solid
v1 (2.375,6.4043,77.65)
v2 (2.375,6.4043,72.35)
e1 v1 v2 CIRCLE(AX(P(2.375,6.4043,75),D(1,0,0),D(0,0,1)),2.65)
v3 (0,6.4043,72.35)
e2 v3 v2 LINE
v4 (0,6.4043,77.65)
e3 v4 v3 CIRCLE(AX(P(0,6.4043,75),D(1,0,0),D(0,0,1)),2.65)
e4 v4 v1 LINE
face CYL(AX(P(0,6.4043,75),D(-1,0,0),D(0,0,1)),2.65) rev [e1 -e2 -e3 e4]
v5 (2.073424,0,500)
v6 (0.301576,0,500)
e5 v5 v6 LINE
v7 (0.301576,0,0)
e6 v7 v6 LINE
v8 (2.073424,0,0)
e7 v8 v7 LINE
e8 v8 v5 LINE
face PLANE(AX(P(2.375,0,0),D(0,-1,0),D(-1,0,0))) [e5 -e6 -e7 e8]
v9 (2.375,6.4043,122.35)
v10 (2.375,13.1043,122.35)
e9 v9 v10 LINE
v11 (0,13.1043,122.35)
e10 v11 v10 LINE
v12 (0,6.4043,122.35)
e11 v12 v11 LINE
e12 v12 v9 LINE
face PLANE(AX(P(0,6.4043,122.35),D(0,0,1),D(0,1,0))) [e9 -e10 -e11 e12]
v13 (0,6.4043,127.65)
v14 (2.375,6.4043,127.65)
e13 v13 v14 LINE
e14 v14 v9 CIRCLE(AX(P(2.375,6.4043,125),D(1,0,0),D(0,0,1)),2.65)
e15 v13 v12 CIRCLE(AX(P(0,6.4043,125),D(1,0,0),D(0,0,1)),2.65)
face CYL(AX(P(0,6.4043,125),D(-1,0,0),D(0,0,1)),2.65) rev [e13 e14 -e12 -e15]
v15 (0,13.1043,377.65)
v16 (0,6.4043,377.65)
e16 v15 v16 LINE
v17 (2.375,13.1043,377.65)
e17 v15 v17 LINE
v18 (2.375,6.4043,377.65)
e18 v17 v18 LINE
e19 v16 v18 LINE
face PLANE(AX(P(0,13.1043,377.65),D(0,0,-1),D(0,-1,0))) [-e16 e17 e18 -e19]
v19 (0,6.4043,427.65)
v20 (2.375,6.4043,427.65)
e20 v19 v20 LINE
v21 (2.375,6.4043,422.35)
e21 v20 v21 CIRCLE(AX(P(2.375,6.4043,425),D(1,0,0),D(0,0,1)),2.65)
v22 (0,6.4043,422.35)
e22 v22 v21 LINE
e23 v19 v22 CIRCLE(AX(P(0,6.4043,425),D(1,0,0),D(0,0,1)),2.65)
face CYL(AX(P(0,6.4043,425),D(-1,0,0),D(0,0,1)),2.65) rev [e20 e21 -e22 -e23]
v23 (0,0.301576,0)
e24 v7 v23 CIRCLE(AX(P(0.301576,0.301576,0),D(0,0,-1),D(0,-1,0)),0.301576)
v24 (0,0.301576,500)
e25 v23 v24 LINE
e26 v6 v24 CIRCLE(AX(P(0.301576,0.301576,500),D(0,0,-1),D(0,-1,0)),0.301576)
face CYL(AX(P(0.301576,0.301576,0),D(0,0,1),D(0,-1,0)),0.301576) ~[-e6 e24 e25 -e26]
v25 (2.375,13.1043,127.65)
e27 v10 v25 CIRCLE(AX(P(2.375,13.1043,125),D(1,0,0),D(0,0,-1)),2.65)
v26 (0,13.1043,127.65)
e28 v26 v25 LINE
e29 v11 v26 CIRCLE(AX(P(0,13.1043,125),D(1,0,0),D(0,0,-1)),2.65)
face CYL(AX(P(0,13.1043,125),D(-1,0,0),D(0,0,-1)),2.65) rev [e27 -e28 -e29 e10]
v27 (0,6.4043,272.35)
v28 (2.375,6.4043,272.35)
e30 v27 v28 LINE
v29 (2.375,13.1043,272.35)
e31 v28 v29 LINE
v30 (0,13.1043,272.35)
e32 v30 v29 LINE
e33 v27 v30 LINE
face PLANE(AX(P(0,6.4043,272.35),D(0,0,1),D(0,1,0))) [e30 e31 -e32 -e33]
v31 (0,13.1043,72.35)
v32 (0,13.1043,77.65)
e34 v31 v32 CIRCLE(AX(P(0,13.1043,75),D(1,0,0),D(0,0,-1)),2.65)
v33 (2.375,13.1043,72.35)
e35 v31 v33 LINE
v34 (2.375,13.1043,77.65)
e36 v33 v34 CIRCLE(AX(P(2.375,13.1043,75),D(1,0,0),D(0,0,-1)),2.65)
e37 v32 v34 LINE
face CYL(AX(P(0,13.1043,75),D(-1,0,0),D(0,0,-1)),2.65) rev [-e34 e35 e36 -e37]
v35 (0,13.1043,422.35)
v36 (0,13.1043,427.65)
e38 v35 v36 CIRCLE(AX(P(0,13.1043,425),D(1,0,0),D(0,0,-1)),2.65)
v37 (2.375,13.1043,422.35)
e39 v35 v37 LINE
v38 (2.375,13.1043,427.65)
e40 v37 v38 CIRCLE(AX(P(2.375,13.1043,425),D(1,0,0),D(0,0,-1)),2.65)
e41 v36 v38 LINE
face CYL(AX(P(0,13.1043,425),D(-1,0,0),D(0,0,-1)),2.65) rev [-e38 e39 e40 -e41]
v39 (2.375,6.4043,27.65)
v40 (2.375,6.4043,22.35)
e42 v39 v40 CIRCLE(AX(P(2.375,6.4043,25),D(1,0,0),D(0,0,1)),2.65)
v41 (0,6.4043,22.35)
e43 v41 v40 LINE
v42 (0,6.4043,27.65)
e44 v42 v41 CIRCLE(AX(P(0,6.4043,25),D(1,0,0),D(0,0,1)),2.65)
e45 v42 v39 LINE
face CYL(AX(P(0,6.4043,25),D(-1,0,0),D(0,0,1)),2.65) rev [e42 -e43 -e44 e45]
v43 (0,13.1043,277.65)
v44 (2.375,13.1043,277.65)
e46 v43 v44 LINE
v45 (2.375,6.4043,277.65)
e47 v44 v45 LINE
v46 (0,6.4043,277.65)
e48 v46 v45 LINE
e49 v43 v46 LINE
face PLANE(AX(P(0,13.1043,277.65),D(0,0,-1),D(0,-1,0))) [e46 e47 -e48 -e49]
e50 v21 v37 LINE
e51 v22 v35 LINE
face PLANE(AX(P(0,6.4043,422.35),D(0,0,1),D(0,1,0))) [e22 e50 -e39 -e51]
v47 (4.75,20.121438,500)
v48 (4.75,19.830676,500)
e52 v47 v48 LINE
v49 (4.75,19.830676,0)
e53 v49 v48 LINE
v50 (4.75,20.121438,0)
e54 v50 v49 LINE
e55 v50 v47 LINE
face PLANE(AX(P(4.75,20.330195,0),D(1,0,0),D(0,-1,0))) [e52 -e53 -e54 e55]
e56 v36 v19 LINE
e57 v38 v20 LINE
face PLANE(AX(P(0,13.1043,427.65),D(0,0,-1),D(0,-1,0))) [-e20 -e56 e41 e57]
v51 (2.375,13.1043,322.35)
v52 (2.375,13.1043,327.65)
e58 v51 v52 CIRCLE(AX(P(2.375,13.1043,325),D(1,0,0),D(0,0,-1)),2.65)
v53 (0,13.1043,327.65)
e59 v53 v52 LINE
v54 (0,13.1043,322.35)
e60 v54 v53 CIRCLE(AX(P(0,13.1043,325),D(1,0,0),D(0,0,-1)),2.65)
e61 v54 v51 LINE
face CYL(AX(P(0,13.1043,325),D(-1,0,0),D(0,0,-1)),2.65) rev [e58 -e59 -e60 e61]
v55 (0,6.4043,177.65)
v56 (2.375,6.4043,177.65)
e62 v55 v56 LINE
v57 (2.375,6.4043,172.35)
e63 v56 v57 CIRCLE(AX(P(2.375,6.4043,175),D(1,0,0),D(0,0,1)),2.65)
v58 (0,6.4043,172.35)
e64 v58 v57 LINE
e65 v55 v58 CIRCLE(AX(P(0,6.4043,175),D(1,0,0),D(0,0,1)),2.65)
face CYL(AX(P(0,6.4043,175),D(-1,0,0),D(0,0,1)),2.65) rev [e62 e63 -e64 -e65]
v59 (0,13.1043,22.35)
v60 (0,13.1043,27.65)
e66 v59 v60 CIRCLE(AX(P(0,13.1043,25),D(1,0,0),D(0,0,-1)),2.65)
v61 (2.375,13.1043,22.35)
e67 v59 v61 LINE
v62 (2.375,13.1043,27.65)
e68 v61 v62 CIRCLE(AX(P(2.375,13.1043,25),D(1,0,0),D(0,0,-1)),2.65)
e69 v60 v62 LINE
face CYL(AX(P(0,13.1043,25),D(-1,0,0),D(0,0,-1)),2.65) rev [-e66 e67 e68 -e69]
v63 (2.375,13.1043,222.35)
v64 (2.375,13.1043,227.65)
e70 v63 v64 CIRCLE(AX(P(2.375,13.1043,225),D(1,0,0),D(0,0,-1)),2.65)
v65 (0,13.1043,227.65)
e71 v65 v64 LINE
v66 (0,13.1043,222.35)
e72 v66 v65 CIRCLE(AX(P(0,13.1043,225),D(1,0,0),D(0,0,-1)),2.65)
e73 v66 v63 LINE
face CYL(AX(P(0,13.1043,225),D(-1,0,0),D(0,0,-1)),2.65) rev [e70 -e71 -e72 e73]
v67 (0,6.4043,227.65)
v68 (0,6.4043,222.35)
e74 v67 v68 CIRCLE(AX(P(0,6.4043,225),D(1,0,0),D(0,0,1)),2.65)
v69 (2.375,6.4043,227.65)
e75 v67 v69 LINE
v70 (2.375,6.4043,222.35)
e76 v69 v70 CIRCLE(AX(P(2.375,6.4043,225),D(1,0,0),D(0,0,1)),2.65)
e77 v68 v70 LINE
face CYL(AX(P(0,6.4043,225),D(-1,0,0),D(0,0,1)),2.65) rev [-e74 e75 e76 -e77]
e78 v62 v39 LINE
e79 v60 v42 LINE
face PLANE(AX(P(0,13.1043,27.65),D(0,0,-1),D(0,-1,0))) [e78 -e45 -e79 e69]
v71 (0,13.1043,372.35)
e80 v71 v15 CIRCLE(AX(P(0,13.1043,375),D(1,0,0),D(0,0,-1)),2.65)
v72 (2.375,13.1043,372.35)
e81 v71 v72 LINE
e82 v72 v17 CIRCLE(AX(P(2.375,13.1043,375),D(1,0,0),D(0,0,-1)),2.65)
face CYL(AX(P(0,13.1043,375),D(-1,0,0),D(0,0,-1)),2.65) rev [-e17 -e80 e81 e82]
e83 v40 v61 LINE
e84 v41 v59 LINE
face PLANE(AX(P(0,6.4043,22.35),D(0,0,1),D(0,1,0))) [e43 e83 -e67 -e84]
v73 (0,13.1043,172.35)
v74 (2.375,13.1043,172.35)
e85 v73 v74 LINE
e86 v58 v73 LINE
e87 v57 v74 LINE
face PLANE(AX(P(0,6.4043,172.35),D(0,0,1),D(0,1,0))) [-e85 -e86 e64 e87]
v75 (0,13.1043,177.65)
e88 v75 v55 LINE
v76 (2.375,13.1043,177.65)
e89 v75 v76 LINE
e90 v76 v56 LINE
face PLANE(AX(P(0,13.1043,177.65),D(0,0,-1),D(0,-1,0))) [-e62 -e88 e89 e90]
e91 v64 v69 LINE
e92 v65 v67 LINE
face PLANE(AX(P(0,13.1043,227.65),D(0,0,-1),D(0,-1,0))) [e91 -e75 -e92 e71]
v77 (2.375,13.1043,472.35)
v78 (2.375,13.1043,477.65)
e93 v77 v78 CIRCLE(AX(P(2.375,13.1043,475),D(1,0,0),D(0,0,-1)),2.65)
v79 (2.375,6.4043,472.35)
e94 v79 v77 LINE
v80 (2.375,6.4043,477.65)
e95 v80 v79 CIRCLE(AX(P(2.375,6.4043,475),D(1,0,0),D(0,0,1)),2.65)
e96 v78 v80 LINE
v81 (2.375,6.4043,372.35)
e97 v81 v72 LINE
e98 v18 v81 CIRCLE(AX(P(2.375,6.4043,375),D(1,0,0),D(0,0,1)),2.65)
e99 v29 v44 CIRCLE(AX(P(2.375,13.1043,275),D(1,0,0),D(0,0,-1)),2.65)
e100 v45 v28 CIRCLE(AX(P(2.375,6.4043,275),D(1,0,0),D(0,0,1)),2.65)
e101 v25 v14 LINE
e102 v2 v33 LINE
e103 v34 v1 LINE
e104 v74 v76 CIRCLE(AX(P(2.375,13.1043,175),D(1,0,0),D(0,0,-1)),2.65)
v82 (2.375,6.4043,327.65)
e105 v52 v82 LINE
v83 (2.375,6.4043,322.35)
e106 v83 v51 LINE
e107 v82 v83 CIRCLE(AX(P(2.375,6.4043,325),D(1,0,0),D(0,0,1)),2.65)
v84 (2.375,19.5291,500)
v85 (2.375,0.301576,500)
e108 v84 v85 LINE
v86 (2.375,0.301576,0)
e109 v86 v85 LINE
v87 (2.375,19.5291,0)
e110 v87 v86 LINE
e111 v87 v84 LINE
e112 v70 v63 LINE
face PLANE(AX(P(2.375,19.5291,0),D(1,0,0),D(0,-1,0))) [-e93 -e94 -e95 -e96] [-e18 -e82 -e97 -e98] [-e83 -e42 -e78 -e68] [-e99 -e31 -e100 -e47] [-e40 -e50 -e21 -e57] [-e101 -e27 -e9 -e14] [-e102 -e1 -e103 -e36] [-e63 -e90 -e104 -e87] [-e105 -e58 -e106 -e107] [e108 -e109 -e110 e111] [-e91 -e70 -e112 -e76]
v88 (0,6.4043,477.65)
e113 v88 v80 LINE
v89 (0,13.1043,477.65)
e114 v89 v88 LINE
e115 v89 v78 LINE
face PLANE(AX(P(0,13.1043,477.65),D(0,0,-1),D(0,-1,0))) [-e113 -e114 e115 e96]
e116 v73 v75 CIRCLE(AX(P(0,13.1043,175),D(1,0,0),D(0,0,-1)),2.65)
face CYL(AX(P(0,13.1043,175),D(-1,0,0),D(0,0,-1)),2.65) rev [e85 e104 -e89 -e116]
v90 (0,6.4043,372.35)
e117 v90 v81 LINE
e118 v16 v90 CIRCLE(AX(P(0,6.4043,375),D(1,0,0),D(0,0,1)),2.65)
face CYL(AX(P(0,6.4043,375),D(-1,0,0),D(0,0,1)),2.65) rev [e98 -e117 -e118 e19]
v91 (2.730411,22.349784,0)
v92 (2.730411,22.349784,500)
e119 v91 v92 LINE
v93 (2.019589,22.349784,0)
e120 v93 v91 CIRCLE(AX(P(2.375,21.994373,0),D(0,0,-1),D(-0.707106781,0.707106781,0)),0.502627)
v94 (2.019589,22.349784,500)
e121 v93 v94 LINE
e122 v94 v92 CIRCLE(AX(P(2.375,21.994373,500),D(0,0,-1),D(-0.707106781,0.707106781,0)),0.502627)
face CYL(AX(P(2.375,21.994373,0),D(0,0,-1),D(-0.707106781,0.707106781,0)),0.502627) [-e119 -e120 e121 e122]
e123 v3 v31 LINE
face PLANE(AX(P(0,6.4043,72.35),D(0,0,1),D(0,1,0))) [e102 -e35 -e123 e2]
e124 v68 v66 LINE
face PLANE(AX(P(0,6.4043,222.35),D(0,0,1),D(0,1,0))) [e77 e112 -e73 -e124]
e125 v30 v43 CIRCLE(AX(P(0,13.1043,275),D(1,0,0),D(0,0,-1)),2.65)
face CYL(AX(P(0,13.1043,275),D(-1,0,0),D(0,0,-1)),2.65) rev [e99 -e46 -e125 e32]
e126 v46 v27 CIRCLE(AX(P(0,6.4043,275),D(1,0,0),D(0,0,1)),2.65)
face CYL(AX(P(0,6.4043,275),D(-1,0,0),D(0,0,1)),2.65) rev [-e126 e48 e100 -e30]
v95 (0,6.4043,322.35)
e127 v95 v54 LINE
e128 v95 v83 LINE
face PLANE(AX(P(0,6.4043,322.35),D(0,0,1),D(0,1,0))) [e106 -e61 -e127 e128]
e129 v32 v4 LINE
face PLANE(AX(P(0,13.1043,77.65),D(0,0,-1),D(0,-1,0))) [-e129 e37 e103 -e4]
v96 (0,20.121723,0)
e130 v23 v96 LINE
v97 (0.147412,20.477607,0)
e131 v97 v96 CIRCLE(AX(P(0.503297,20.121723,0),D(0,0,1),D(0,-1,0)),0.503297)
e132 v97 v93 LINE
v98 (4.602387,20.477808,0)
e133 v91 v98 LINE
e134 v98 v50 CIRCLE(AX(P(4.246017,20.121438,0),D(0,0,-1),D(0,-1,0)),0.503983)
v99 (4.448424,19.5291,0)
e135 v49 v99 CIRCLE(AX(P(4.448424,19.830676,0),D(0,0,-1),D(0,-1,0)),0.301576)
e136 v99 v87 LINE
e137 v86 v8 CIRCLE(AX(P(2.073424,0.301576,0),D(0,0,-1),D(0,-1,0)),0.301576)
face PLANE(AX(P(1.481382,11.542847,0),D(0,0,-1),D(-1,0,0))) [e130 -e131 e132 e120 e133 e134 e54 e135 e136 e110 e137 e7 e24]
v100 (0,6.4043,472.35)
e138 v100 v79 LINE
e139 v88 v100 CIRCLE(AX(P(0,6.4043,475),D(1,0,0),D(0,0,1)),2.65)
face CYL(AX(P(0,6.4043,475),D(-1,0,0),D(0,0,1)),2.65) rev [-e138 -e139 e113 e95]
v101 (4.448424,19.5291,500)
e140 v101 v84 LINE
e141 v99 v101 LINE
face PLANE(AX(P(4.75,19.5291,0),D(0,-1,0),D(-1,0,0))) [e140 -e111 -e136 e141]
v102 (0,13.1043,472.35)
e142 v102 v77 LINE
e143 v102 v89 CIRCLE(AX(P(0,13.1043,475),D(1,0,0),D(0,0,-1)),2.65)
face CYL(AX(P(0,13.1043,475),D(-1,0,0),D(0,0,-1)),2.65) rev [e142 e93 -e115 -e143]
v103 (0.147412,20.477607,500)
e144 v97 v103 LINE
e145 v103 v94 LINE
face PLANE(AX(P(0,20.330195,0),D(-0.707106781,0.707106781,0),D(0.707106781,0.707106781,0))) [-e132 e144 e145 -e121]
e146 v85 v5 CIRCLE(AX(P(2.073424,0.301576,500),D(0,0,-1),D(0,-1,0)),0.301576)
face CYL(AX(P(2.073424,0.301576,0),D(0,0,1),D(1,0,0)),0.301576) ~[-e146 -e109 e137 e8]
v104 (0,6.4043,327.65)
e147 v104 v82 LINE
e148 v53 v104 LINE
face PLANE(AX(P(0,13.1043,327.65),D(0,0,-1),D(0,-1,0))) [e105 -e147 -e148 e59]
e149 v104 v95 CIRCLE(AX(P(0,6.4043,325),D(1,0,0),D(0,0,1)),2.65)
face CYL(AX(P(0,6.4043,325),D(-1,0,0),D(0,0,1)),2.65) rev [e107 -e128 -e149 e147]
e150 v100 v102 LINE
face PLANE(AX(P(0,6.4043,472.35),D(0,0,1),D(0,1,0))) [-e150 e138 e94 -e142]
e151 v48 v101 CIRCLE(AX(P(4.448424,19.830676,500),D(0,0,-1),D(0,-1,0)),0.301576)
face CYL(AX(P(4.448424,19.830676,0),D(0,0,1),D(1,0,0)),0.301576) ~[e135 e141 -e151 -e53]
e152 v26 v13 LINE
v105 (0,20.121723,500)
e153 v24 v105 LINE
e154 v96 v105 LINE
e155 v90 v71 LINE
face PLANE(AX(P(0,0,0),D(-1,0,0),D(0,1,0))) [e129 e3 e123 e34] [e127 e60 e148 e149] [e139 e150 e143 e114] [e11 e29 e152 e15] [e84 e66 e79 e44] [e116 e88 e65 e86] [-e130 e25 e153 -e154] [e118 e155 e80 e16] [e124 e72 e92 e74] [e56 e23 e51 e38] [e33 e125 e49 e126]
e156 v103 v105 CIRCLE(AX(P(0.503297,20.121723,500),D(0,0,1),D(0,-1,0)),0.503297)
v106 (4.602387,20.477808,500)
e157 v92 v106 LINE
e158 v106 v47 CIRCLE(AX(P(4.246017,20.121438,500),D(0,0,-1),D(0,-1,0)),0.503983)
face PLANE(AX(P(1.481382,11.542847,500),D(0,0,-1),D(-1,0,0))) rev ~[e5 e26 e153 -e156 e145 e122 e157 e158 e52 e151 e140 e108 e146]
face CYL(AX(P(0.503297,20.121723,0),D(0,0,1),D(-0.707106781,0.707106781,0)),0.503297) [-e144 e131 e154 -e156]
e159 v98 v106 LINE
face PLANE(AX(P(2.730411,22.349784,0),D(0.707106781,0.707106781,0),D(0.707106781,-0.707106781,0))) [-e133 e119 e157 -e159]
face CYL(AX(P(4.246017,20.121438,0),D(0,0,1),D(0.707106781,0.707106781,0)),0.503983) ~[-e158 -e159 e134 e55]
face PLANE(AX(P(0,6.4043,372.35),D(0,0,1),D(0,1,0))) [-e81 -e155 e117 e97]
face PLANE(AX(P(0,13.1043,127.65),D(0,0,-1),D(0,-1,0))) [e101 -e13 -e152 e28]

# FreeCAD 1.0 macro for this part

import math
import FreeCAD as App
import Part
import Sketcher
Q = App.Units.Quantity


def edges_at(feature, points):
    """Names of the edges that pass closest to the given points."""
    edges = feature.Shape.Edges
    near = lambda p: min(range(len(edges)), key=lambda i: edges[i].distToShape(Part.Vertex(*p))[0])
    return sorted({f"Edge{near(p) + 1}" for p in points})

doc = App.newDocument("Part")
body = doc.addObject("PartDesign::Body", "Body")

# Sketch on XY plane
sketch1 = body.newObject("Sketcher::SketchObject", "Sketch")
sketch1.AttachmentSupport = (doc.getObject("XY_Plane"), [""])
sketch1.MapMode = "FlatFace"
sketch1.addGeometry(Part.LineSegment(App.Vector(2, 22.3, 0), App.Vector(0, 20.3, 0)), False)
sketch1.addGeometry(Part.LineSegment(App.Vector(0, 20.3, 0), App.Vector(0, 0, 0)), False)
sketch1.addGeometry(Part.LineSegment(App.Vector(0, 0, 0), App.Vector(2.4, 0, 0)), False)
sketch1.addGeometry(Part.LineSegment(App.Vector(2.4, 0, 0), App.Vector(2.4, 19.5, 0)), False)
sketch1.addGeometry(Part.LineSegment(App.Vector(2.4, 19.5, 0), App.Vector(4.8, 19.5, 0)), False)
sketch1.addGeometry(Part.LineSegment(App.Vector(4.8, 19.5, 0), App.Vector(4.8, 20.3, 0)), False)
sketch1.addGeometry(Part.LineSegment(App.Vector(4.8, 20.3, 0), App.Vector(2.7, 22.3, 0)), False)
sketch1.addGeometry(Part.ArcOfCircle(Part.Circle(App.Vector(2.4, 22, 0), App.Vector(0, 0, 1), 0.5), math.radians(45), math.radians(135)), False)
sketch1.addConstraint(Sketcher.Constraint("Coincident", 0, 2, 1, 1))
sketch1.addConstraint(Sketcher.Constraint("Coincident", 1, 2, 2, 1))
sketch1.addConstraint(Sketcher.Constraint("Coincident", 2, 2, 3, 1))
sketch1.addConstraint(Sketcher.Constraint("Coincident", 3, 2, 4, 1))
sketch1.addConstraint(Sketcher.Constraint("Coincident", 4, 2, 5, 1))
sketch1.addConstraint(Sketcher.Constraint("Coincident", 5, 2, 6, 1))
sketch1.addConstraint(Sketcher.Constraint("Tangent", 6, 2, 7, 1))
sketch1.addConstraint(Sketcher.Constraint("Tangent", 7, 2, 0, 1))
sketch1.addConstraint(Sketcher.Constraint("Vertical", 1))
sketch1.addConstraint(Sketcher.Constraint("Horizontal", 2))
sketch1.addConstraint(Sketcher.Constraint("Vertical", 3))
sketch1.addConstraint(Sketcher.Constraint("Horizontal", 4))
sketch1.addConstraint(Sketcher.Constraint("Vertical", 5))
sketch1.addConstraint(Sketcher.Constraint("Coincident", 1, 2, -1, 1))
sketch1.addConstraint(Sketcher.Constraint("Perpendicular", 0, 6))
sketch1.addConstraint(Sketcher.Constraint("Horizontal", 0, 2, 5, 2))
sketch1.addConstraint(Sketcher.Constraint("Horizontal", 6, 2, 7, 2))
sketch1.addConstraint(Sketcher.Constraint("Vertical", 7, 3, 2, 2))
sketch1.addConstraint(Sketcher.Constraint("DistanceX", 2, 1, 2, 2, Q("2.375 mm")))
sketch1.addConstraint(Sketcher.Constraint("DistanceY", 3, 1, 3, 2, Q("19.5291 mm")))
sketch1.addConstraint(Sketcher.Constraint("Radius", 7, Q("0.502627 mm")))
sketch1.addConstraint(Sketcher.Constraint("DistanceY", 1, 2, 1, 1, Q("20.330195 mm")))
pad1 = body.newObject("PartDesign::Pad", "Pad")
pad1.Profile = sketch1
pad1.Length = 500
doc.recompute()

fillet = body.newObject("PartDesign::Fillet", "Fillet")
fillet.Base = (pad1, edges_at(pad1, [(0, 20.33, 250)]))
fillet.Radius = 0.503297
doc.recompute()

fillet2 = body.newObject("PartDesign::Fillet", "Fillet001")
fillet2.Base = (fillet, edges_at(fillet, [(4.75, 20.33, 250)]))
fillet2.Radius = 0.503983
doc.recompute()

fillet3 = body.newObject("PartDesign::Fillet", "Fillet002")
fillet3.Base = (fillet2, edges_at(fillet2, [(4.75, 19.529, 250)]))
fillet3.Radius = 0.301576
doc.recompute()

fillet4 = body.newObject("PartDesign::Fillet", "Fillet003")
fillet4.Base = (fillet3, edges_at(fillet3, [(2.375, 0, 250), (0, 0, 250)]))
fillet4.Radius = 0.301576

# Sketch on YZ plane
sketch2 = body.newObject("Sketcher::SketchObject", "Sketch001")
sketch2.AttachmentSupport = (doc.getObject("YZ_Plane"), [""])
sketch2.MapMode = "FlatFace"
sketch2.addGeometry(Part.LineSegment(App.Vector(6.4, 27.6, 0), App.Vector(13.1, 27.6, 0)), False)
sketch2.addGeometry(Part.ArcOfCircle(Part.Circle(App.Vector(13.1, 25, 0), App.Vector(0, 0, 1), 2.6), math.radians(-90), math.radians(90)), False)
sketch2.addGeometry(Part.LineSegment(App.Vector(13.1, 22.4, 0), App.Vector(6.4, 22.4, 0)), False)
sketch2.addGeometry(Part.ArcOfCircle(Part.Circle(App.Vector(6.4, 25, 0), App.Vector(0, 0, 1), 2.6), math.radians(90), math.radians(270)), False)
sketch2.addConstraint(Sketcher.Constraint("Tangent", 0, 2, 1, 2))
sketch2.addConstraint(Sketcher.Constraint("Tangent", 1, 1, 2, 1))
sketch2.addConstraint(Sketcher.Constraint("Tangent", 2, 2, 3, 2))
sketch2.addConstraint(Sketcher.Constraint("Tangent", 3, 1, 0, 1))
sketch2.addConstraint(Sketcher.Constraint("Horizontal", 0))
sketch2.addConstraint(Sketcher.Constraint("Horizontal", 2))
sketch2.addConstraint(Sketcher.Constraint("Radius", 1, Q("2.65 mm")))
sketch2.addConstraint(Sketcher.Constraint("DistanceX", 0, 1, 0, 2, Q("6.7 mm")))
sketch2.addConstraint(Sketcher.Constraint("DistanceY", -1, 1, 1, 3, Q("25 mm")))
sketch2.addConstraint(Sketcher.Constraint("DistanceX", -1, 1, 1, 3, Q("13.1043 mm")))
pocket1 = body.newObject("PartDesign::Pocket", "Pocket")
pocket1.Profile = sketch2
pocket1.Length = 2.375
pocket1.Reversed = True
doc.recompute()

linearpattern = body.newObject("PartDesign::LinearPattern", "LinearPattern")
linearpattern.Originals = [pocket1]
linearpattern.Direction = (doc.getObject("Z_Axis"), [""])
linearpattern.Mode = "offset"
linearpattern.Offset = 50
linearpattern.Occurrences = 10
body.Tip = linearpattern

doc.recompute()
